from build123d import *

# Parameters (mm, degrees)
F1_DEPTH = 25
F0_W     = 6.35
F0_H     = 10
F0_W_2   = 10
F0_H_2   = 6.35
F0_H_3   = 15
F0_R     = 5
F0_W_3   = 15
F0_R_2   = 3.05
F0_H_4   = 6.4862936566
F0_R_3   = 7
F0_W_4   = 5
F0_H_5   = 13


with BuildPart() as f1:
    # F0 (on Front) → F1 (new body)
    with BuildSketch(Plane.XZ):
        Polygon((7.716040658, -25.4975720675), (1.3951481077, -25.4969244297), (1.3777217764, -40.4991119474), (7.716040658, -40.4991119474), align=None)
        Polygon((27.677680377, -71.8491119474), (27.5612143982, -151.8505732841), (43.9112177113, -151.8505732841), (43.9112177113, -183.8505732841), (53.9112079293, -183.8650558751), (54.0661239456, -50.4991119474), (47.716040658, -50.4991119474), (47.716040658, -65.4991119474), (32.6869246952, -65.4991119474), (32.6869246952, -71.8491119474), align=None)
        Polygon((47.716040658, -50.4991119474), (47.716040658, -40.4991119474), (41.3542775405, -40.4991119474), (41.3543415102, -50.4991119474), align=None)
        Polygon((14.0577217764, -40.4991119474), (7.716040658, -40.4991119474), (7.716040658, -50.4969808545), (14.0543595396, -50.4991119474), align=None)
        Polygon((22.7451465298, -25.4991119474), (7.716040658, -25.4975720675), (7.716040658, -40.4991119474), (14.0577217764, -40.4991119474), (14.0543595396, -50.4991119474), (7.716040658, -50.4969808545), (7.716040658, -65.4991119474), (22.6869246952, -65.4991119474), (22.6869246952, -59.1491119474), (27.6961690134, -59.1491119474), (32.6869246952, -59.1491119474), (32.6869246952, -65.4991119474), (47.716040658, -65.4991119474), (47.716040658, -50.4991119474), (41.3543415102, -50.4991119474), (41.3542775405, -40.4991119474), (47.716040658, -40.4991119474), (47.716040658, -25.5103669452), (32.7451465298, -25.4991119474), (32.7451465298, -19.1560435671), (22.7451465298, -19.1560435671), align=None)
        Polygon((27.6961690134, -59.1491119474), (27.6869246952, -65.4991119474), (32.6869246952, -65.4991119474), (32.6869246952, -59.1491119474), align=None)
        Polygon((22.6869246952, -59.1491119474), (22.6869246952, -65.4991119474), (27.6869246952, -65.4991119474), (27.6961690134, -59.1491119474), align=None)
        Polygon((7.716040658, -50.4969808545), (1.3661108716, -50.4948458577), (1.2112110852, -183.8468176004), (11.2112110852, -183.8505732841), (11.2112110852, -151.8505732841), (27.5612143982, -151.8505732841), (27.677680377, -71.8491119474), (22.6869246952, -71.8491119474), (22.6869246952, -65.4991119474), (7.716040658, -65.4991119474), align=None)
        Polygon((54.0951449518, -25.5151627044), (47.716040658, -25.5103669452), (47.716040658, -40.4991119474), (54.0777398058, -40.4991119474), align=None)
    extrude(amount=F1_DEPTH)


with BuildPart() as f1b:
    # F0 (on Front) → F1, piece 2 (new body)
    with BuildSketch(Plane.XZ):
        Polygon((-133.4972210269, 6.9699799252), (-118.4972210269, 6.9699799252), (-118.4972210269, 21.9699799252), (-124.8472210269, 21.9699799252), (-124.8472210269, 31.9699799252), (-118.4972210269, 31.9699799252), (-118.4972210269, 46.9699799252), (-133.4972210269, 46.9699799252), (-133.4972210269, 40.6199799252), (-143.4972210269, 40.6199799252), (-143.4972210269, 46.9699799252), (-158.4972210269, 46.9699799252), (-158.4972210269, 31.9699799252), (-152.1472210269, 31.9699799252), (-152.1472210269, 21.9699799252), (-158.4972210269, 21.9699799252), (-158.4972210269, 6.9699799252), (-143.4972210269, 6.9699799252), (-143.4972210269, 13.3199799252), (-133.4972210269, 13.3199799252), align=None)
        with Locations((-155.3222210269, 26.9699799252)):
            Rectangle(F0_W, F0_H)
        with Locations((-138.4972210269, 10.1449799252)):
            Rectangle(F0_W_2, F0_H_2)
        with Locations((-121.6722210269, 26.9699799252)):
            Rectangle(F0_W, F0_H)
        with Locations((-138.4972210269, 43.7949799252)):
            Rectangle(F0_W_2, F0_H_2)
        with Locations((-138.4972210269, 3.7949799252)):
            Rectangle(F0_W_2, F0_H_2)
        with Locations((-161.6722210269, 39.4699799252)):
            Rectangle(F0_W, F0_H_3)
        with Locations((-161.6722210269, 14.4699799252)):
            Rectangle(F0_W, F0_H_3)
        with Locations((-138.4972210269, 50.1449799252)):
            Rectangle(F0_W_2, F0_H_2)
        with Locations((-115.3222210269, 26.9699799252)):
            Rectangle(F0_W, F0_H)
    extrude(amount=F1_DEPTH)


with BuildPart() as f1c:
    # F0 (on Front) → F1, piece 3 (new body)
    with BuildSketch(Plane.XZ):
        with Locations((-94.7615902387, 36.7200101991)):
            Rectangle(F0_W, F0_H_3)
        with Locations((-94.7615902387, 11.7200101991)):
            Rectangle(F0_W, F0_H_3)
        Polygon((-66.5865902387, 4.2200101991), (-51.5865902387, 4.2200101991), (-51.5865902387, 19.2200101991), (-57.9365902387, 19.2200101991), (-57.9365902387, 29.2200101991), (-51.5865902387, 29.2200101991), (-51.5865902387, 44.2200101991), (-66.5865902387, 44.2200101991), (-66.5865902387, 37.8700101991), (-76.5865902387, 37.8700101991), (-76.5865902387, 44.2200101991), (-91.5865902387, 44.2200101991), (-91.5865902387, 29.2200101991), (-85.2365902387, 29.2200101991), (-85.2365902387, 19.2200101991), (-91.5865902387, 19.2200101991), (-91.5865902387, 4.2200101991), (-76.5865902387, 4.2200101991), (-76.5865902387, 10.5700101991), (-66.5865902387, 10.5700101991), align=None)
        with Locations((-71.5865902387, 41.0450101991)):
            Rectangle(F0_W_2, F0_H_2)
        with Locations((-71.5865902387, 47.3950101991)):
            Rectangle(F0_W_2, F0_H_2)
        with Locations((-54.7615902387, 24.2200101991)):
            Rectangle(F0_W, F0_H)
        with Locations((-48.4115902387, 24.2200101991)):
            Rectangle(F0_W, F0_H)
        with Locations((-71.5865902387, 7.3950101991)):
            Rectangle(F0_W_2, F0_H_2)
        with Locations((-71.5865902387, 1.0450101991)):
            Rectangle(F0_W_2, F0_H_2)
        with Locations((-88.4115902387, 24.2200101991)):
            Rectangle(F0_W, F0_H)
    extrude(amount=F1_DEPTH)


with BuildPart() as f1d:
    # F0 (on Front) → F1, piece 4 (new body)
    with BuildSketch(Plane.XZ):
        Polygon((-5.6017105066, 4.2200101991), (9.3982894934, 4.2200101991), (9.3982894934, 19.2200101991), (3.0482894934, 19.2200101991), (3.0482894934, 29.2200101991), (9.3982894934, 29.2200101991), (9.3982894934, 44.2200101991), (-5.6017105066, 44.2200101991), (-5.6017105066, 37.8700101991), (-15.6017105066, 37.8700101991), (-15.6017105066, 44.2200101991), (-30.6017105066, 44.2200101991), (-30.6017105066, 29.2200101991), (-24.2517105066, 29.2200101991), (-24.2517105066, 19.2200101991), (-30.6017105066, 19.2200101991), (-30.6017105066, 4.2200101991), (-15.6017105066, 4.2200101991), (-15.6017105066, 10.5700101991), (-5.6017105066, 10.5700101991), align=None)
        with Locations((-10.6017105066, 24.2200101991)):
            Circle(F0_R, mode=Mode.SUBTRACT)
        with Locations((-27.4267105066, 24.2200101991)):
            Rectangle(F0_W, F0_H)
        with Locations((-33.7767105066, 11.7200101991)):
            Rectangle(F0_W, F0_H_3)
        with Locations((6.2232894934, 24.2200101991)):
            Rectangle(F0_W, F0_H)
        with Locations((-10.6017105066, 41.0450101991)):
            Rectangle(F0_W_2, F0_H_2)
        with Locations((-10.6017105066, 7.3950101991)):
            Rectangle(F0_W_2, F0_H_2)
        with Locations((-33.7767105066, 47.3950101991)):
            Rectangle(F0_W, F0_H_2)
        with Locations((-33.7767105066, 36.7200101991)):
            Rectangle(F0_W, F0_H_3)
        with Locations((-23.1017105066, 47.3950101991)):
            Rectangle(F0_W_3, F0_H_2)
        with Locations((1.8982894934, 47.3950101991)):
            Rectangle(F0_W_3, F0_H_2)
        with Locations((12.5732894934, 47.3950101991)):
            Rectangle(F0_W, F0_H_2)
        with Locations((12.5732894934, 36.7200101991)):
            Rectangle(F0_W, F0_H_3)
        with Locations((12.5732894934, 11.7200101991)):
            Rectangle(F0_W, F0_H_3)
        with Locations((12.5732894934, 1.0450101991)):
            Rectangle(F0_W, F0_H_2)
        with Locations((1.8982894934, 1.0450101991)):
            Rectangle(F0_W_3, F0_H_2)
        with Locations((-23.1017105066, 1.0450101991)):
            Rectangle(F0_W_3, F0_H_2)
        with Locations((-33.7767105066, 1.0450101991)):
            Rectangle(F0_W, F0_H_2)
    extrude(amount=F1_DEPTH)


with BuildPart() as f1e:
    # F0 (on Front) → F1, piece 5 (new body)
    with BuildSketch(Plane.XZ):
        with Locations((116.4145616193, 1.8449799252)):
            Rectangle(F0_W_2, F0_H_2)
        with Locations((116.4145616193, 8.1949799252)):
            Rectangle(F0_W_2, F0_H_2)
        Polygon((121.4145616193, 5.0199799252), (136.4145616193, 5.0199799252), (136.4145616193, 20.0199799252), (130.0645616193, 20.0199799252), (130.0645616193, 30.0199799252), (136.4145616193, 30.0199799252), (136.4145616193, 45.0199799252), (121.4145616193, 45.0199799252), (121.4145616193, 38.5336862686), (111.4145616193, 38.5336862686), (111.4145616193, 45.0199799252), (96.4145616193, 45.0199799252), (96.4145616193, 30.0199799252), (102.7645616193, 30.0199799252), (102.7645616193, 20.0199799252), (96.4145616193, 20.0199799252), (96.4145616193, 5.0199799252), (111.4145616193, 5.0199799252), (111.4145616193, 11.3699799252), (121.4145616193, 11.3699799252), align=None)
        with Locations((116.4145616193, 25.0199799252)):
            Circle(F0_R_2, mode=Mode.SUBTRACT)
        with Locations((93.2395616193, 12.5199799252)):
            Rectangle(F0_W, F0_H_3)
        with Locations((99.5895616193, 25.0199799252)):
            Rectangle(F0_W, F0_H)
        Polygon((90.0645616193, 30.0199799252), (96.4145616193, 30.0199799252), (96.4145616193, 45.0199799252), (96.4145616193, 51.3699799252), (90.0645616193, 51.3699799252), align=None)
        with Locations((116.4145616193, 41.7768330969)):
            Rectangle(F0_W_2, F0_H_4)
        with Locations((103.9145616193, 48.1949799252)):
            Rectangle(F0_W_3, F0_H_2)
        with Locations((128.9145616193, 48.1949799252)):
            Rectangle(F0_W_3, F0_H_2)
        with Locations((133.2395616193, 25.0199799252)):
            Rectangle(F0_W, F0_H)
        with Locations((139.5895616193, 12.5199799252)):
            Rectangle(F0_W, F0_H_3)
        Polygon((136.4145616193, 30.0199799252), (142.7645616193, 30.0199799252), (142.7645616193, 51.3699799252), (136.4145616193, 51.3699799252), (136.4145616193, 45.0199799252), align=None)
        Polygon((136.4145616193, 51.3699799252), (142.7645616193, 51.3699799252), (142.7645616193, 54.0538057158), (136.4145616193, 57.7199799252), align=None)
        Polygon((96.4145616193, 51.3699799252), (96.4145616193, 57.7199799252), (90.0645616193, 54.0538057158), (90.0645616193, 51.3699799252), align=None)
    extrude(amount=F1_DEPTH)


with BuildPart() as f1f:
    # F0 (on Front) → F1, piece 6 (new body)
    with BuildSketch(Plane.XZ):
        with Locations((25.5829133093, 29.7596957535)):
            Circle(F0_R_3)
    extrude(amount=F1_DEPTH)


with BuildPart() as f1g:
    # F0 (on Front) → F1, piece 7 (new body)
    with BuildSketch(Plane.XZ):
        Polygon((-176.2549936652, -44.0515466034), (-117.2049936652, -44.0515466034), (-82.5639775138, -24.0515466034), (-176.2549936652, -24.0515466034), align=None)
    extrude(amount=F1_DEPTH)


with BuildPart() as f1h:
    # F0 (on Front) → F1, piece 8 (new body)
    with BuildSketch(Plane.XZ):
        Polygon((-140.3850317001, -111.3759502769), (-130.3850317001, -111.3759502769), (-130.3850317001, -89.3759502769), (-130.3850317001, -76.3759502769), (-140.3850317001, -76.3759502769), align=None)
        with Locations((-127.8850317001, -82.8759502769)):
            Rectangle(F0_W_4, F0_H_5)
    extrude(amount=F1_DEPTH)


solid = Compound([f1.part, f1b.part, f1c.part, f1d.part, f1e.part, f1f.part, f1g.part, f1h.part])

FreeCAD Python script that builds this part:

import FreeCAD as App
import Part
import Sketcher

V = App.Vector
Q = App.Units.Quantity

doc = App.newDocument("Part")
body = doc.addObject("PartDesign::Body", "Body")

sketch1 = body.newObject("Sketcher::SketchObject", "Sketch")
sketch1.AttachmentSupport = (doc.getObject("XZ_Plane"), [""])
sketch1.MapMode = "FlatFace"
sketch1.addGeometry([
    Part.LineSegment(V(7.716041, -25.497572, 0), V(1.395148, -25.496924, 0)),
    Part.LineSegment(V(1.395148, -25.496924, 0), V(1.377722, -40.499112, 0)),
    Part.LineSegment(V(1.377722, -40.499112, 0), V(7.716041, -40.499112, 0)),
    Part.LineSegment(V(7.716041, -40.499112, 0), V(7.716041, -50.496981, 0)),
    Part.LineSegment(V(7.716041, -50.496981, 0), V(1.366111, -50.494846, 0)),
    Part.LineSegment(V(1.366111, -50.494846, 0), V(1.211211, -183.846818, 0)),
    Part.LineSegment(V(1.211211, -183.846818, 0), V(11.211211, -183.850573, 0)),
    Part.LineSegment(V(11.211211, -183.850573, 0), V(11.211211, -151.850573, 0)),
    Part.LineSegment(V(11.211211, -151.850573, 0), V(43.911218, -151.850573, 0)),
    Part.LineSegment(V(43.911218, -151.850573, 0), V(43.911218, -183.850573, 0)),
    Part.LineSegment(V(43.911218, -183.850573, 0), V(53.911208, -183.865056, 0)),
    Part.LineSegment(V(53.911208, -183.865056, 0), V(54.066124, -50.499112, 0)),
    Part.LineSegment(V(54.066124, -50.499112, 0), V(47.716041, -50.499112, 0)),
    Part.LineSegment(V(47.716041, -50.499112, 0), V(47.716041, -40.499112, 0)),
    Part.LineSegment(V(47.716041, -40.499112, 0), V(54.07774, -40.499112, 0)),
    Part.LineSegment(V(54.07774, -40.499112, 0), V(54.095145, -25.515163, 0)),
    Part.LineSegment(V(54.095145, -25.515163, 0), V(47.716041, -25.510367, 0)),
    Part.LineSegment(V(47.716041, -25.510367, 0), V(32.745147, -25.499112, 0)),
    Part.LineSegment(V(32.745147, -25.499112, 0), V(32.745147, -19.156044, 0)),
    Part.LineSegment(V(32.745147, -19.156044, 0), V(22.745147, -19.156044, 0)),
    Part.LineSegment(V(22.745147, -19.156044, 0), V(22.745147, -25.499112, 0)),
    Part.LineSegment(V(22.745147, -25.499112, 0), V(7.716041, -25.497572, 0)),
    Part.LineSegment(V(22.686925, -65.499112, 0), V(32.686925, -65.499112, 0)),
    Part.LineSegment(V(32.686925, -65.499112, 0), V(32.686925, -71.849112, 0)),
    Part.LineSegment(V(32.686925, -71.849112, 0), V(22.686925, -71.849112, 0)),
    Part.LineSegment(V(22.686925, -71.849112, 0), V(22.686925, -65.499112, 0)),
], False)
sketch1.addConstraint([
    Sketcher.Constraint("Coincident", 0, 2, 1, 1),
    Sketcher.Constraint("Coincident", 1, 2, 2, 1),
    Sketcher.Constraint("Coincident", 2, 2, 3, 1),
    Sketcher.Constraint("Coincident", 3, 2, 4, 1),
    Sketcher.Constraint("Coincident", 4, 2, 5, 1),
    Sketcher.Constraint("Coincident", 5, 2, 6, 1),
    Sketcher.Constraint("Coincident", 6, 2, 7, 1),
    Sketcher.Constraint("Coincident", 7, 2, 8, 1),
    Sketcher.Constraint("Coincident", 8, 2, 9, 1),
    Sketcher.Constraint("Coincident", 9, 2, 10, 1),
    Sketcher.Constraint("Coincident", 10, 2, 11, 1),
    Sketcher.Constraint("Coincident", 11, 2, 12, 1),
    Sketcher.Constraint("Coincident", 12, 2, 13, 1),
    Sketcher.Constraint("Coincident", 13, 2, 14, 1),
    Sketcher.Constraint("Coincident", 14, 2, 15, 1),
    Sketcher.Constraint("Coincident", 15, 2, 16, 1),
    Sketcher.Constraint("Coincident", 16, 2, 17, 1),
    Sketcher.Constraint("Coincident", 17, 2, 18, 1),
    Sketcher.Constraint("Coincident", 18, 2, 19, 1),
    Sketcher.Constraint("Coincident", 19, 2, 20, 1),
    Sketcher.Constraint("Coincident", 20, 2, 21, 1),
    Sketcher.Constraint("Coincident", 21, 2, 0, 1),
    Sketcher.Constraint("Coincident", 22, 2, 23, 1),
    Sketcher.Constraint("Coincident", 23, 2, 24, 1),
    Sketcher.Constraint("Coincident", 24, 2, 25, 1),
    Sketcher.Constraint("Coincident", 25, 2, 22, 1),
    Sketcher.Constraint("Horizontal", 2),
    Sketcher.Constraint("Vertical", 3),
    Sketcher.Constraint("Vertical", 7),
    Sketcher.Constraint("Horizontal", 8),
    Sketcher.Constraint("Vertical", 9),
    Sketcher.Constraint("Horizontal", 12),
    Sketcher.Constraint("Vertical", 13),
    Sketcher.Constraint("Horizontal", 14),
    Sketcher.Constraint("Vertical", 18),
    Sketcher.Constraint("Horizontal", 19),
    Sketcher.Constraint("Vertical", 20),
    Sketcher.Constraint("Horizontal", 22),
    Sketcher.Constraint("Vertical", 23),
    Sketcher.Constraint("Horizontal", 24),
    Sketcher.Constraint("Vertical", 25),
    Sketcher.Constraint("DistanceX", 19, 2, 19, 1, Q("10 mm")),
    Sketcher.Constraint("DistanceX", 22, 1, 22, 2, Q("10 mm")),
    Sketcher.Constraint("DistanceY", 7, 1, 7, 2, Q("32 mm")),
    Sketcher.Constraint("DistanceY", 9, 2, 9, 1, Q("32 mm")),
    Sketcher.Constraint("DistanceY", 13, 1, 13, 2, Q("10 mm")),
    Sketcher.Constraint("Distance", 6, Q("10.000001 mm")),
    Sketcher.Constraint("Distance", 10, Q("10.000001 mm")),
    Sketcher.Constraint("DistanceY", 11, 2, 2, 2, Q("10 mm")),
    Sketcher.Constraint("DistanceX", 3, 2, 12, 2, Q("40 mm")),
    Sketcher.Constraint("DistanceY", 13, 2, 17, 2, Q("15 mm")),
    Sketcher.Constraint("DistanceY", 2, 2, 20, 2, Q("15 mm")),
    Sketcher.Constraint("DistanceY", 22, 2, 12, 2, Q("15 mm")),
    Sketcher.Constraint("DistanceY", 23, 2, 23, 1, Q("6.35 mm")),
    Sketcher.Constraint("DistanceX", 17, 2, 15, 2, Q("21.349998 mm")),
    Sketcher.Constraint("DistanceX", 0, 2, 19, 2, Q("21.349998 mm")),
    Sketcher.Constraint("DistanceX", 14, 1, 14, 2, Q("6.361699 mm")),
    Sketcher.Constraint("Distance", 17, Q("14.970898 mm")),
    Sketcher.Constraint("DistanceX", 2, 1, 2, 2, Q("6.338319 mm")),
    Sketcher.Constraint("DistanceY", 3, 2, 3, 1, Q("9.997869 mm")),
    Sketcher.Constraint("DistanceY", 18, 1, 18, 2, Q("6.343068 mm")),
    Sketcher.Constraint("DistanceX", 5, 2, 4, 2, Q("0.1549 mm")),
    Sketcher.Constraint("DistanceX", 16, 2, 14, 2, Q("6.361699 mm")),
    Sketcher.Constraint("DistanceX", 22, 2, 11, 2, Q("21.379199 mm")),
    Sketcher.Constraint("Distance", 4, Q("6.34993 mm")),
    Sketcher.Constraint("Distance", 5, Q("133.352062 mm")),
    Sketcher.Constraint("Distance", 15, Q("14.983959 mm")),
    Sketcher.Constraint("DistanceX", 8, 1, 8, 2, Q("32.700007 mm")),
    Sketcher.Constraint("DistanceX", 12, 2, 12, 1, Q("6.350083 mm")),
    Sketcher.Constraint("DistanceX", -1, 1, 0, 2, Q("1.395148 mm")),
    Sketcher.Constraint("DistanceY", 1, 2, -1, 1, Q("40.499112 mm")),
    Sketcher.Constraint("DistanceX", -1, 1, 21, 2, Q("7.716041 mm")),
    Sketcher.Constraint("DistanceY", 4, 2, 0, 2, Q("24.997921 mm")),
    Sketcher.Constraint("DistanceY", 6, 2, 2, 2, Q("143.351461 mm")),
    Sketcher.Constraint("DistanceY", 10, 2, 5, 2, Q("0.018238 mm")),
    Sketcher.Constraint("DistanceY", 0, 2, 19, 2, Q("6.340881 mm")),
    Sketcher.Constraint("DistanceY", 2, 2, 21, 2, Q("15.00154 mm")),
    Sketcher.Constraint("DistanceY", 16, 2, -1, 1, Q("25.510367 mm")),
])
pad1 = body.newObject("PartDesign::Pad", "Pad")
pad1.Profile = sketch1
pad1.Length = 25
body2 = doc.addObject("PartDesign::Body", "Body001")

sketch2 = body2.newObject("Sketcher::SketchObject", "Sketch001")
sketch2.AttachmentSupport = (doc.getObject("XZ_Plane001"), [""])
sketch2.MapMode = "FlatFace"
sketch2.addGeometry([
    Part.LineSegment(V(-118, 7, 0), V(-118, 22, 0)),
    Part.LineSegment(V(-118, 22, 0), V(-112, 22, 0)),
    Part.LineSegment(V(-112, 22, 0), V(-112, 32, 0)),
    Part.LineSegment(V(-112, 32, 0), V(-118, 32, 0)),
    Part.LineSegment(V(-118, 32, 0), V(-118, 47, 0)),
    Part.LineSegment(V(-118, 47, 0), V(-133, 47, 0)),
    Part.LineSegment(V(-133, 47, 0), V(-133, 53, 0)),
    Part.LineSegment(V(-133, 53, 0), V(-143, 53, 0)),
    Part.LineSegment(V(-143, 53, 0), V(-143, 47, 0)),
    Part.LineSegment(V(-143, 47, 0), V(-165, 47, 0)),
    Part.LineSegment(V(-165, 47, 0), V(-165, 32, 0)),
    Part.LineSegment(V(-165, 32, 0), V(-158, 32, 0)),
    Part.LineSegment(V(-158, 32, 0), V(-158, 22, 0)),
    Part.LineSegment(V(-158, 22, 0), V(-165, 22, 0)),
    Part.LineSegment(V(-165, 22, 0), V(-165, 7, 0)),
    Part.LineSegment(V(-165, 7, 0), V(-143, 7, 0)),
    Part.LineSegment(V(-143, 7, 0), V(-143, 1, 0)),
    Part.LineSegment(V(-143, 1, 0), V(-133, 1, 0)),
    Part.LineSegment(V(-133, 1, 0), V(-133, 7, 0)),
    Part.LineSegment(V(-133, 7, 0), V(-118, 7, 0)),
], False)
sketch2.addConstraint([
    Sketcher.Constraint("Coincident", 0, 2, 1, 1),
    Sketcher.Constraint("Coincident", 1, 2, 2, 1),
    Sketcher.Constraint("Coincident", 2, 2, 3, 1),
    Sketcher.Constraint("Coincident", 3, 2, 4, 1),
    Sketcher.Constraint("Coincident", 4, 2, 5, 1),
    Sketcher.Constraint("Coincident", 5, 2, 6, 1),
    Sketcher.Constraint("Coincident", 6, 2, 7, 1),
    Sketcher.Constraint("Coincident", 7, 2, 8, 1),
    Sketcher.Constraint("Coincident", 8, 2, 9, 1),
    Sketcher.Constraint("Coincident", 9, 2, 10, 1),
    Sketcher.Constraint("Coincident", 10, 2, 11, 1),
    Sketcher.Constraint("Coincident", 11, 2, 12, 1),
    Sketcher.Constraint("Coincident", 12, 2, 13, 1),
    Sketcher.Constraint("Coincident", 13, 2, 14, 1),
    Sketcher.Constraint("Coincident", 14, 2, 15, 1),
    Sketcher.Constraint("Coincident", 15, 2, 16, 1),
    Sketcher.Constraint("Coincident", 16, 2, 17, 1),
    Sketcher.Constraint("Coincident", 17, 2, 18, 1),
    Sketcher.Constraint("Coincident", 18, 2, 19, 1),
    Sketcher.Constraint("Coincident", 19, 2, 0, 1),
    Sketcher.Constraint("Vertical", 0),
    Sketcher.Constraint("Horizontal", 1),
    Sketcher.Constraint("Vertical", 2),
    Sketcher.Constraint("Horizontal", 3),
    Sketcher.Constraint("Vertical", 4),
    Sketcher.Constraint("Horizontal", 5),
    Sketcher.Constraint("Vertical", 6),
    Sketcher.Constraint("Horizontal", 7),
    Sketcher.Constraint("Vertical", 8),
    Sketcher.Constraint("Horizontal", 9),
    Sketcher.Constraint("Vertical", 10),
    Sketcher.Constraint("Horizontal", 11),
    Sketcher.Constraint("Vertical", 12),
    Sketcher.Constraint("Horizontal", 13),
    Sketcher.Constraint("Vertical", 14),
    Sketcher.Constraint("Horizontal", 15),
    Sketcher.Constraint("Vertical", 16),
    Sketcher.Constraint("Horizontal", 17),
    Sketcher.Constraint("Vertical", 18),
    Sketcher.Constraint("Horizontal", 19),
    Sketcher.Constraint("Horizontal", 5, 2, 8, 2),
    Sketcher.Constraint("Horizontal", 3, 2, 10, 2),
    Sketcher.Constraint("Horizontal", 1, 2, 12, 2),
    Sketcher.Constraint("Horizontal", 15, 2, 18, 2),
    Sketcher.Constraint("Vertical", 0, 2, 3, 2),
    Sketcher.Constraint("Vertical", 10, 2, 13, 2),
    Sketcher.Constraint("Vertical", 8, 2, 15, 2),
    Sketcher.Constraint("Vertical", 6, 2, 17, 2),
    Sketcher.Constraint("Equal", 3, 11),
    Sketcher.Constraint("Equal", 19, 0),
    Sketcher.Constraint("Equal", 17, 2),
    Sketcher.Constraint("Equal", 0, 4),
    Sketcher.Constraint("Equal", 13, 6),
    Sketcher.Constraint("Equal", 8, 16),
    Sketcher.Constraint("DistanceX", 5, 2, 5, 1, Q("15 mm")),
    Sketcher.Constraint("DistanceX", 7, 2, 7, 1, Q("10 mm")),
    Sketcher.Constraint("DistanceX", 11, 2, 8, 2, Q("15 mm")),
    Sketcher.Constraint("DistanceX", 1, 1, 1, 2, Q("6.35 mm")),
    Sketcher.Constraint("DistanceX", 0, 2, -1, 1, Q("118.497221 mm")),
    Sketcher.Constraint("DistanceY", -1, 1, 0, 2, Q("21.96998 mm")),
])
pad2 = body2.newObject("PartDesign::Pad", "Pad001")
pad2.Profile = sketch2
pad2.Length = 25
body3 = doc.addObject("PartDesign::Body", "Body002")

sketch3 = body3.newObject("Sketcher::SketchObject", "Sketch002")
sketch3.AttachmentSupport = (doc.getObject("XZ_Plane002"), [""])
sketch3.MapMode = "FlatFace"
sketch3.addGeometry([
    Part.LineSegment(V(-98, 44, 0), V(-98, 29, 0)),
    Part.LineSegment(V(-98, 29, 0), V(-92, 29, 0)),
    Part.LineSegment(V(-92, 29, 0), V(-92, 19, 0)),
    Part.LineSegment(V(-92, 19, 0), V(-98, 19, 0)),
    Part.LineSegment(V(-98, 19, 0), V(-98, 4, 0)),
    Part.LineSegment(V(-98, 4, 0), V(-77, 4, 0)),
    Part.LineSegment(V(-77, 4, 0), V(-77, -2, 0)),
    Part.LineSegment(V(-77, -2, 0), V(-67, -2, 0)),
    Part.LineSegment(V(-67, -2, 0), V(-67, 4, 0)),
    Part.LineSegment(V(-67, 4, 0), V(-52, 4, 0)),
    Part.LineSegment(V(-52, 4, 0), V(-52, 19, 0)),
    Part.LineSegment(V(-52, 19, 0), V(-45, 19, 0)),
    Part.LineSegment(V(-45, 19, 0), V(-45, 29, 0)),
    Part.LineSegment(V(-45, 29, 0), V(-52, 29, 0)),
    Part.LineSegment(V(-52, 29, 0), V(-52, 44, 0)),
    Part.LineSegment(V(-52, 44, 0), V(-67, 44, 0)),
    Part.LineSegment(V(-67, 44, 0), V(-67, 51, 0)),
    Part.LineSegment(V(-67, 51, 0), V(-77, 51, 0)),
    Part.LineSegment(V(-77, 51, 0), V(-77, 44, 0)),
    Part.LineSegment(V(-77, 44, 0), V(-98, 44, 0)),
], False)
sketch3.addConstraint([
    Sketcher.Constraint("Coincident", 0, 2, 1, 1),
    Sketcher.Constraint("Coincident", 1, 2, 2, 1),
    Sketcher.Constraint("Coincident", 2, 2, 3, 1),
    Sketcher.Constraint("Coincident", 3, 2, 4, 1),
    Sketcher.Constraint("Coincident", 4, 2, 5, 1),
    Sketcher.Constraint("Coincident", 5, 2, 6, 1),
    Sketcher.Constraint("Coincident", 6, 2, 7, 1),
    Sketcher.Constraint("Coincident", 7, 2, 8, 1),
    Sketcher.Constraint("Coincident", 8, 2, 9, 1),
    Sketcher.Constraint("Coincident", 9, 2, 10, 1),
    Sketcher.Constraint("Coincident", 10, 2, 11, 1),
    Sketcher.Constraint("Coincident", 11, 2, 12, 1),
    Sketcher.Constraint("Coincident", 12, 2, 13, 1),
    Sketcher.Constraint("Coincident", 13, 2, 14, 1),
    Sketcher.Constraint("Coincident", 14, 2, 15, 1),
    Sketcher.Constraint("Coincident", 15, 2, 16, 1),
    Sketcher.Constraint("Coincident", 16, 2, 17, 1),
    Sketcher.Constraint("Coincident", 17, 2, 18, 1),
    Sketcher.Constraint("Coincident", 18, 2, 19, 1),
    Sketcher.Constraint("Coincident", 19, 2, 0, 1),
    Sketcher.Constraint("Vertical", 0),
    Sketcher.Constraint("Horizontal", 1),
    Sketcher.Constraint("Vertical", 2),
    Sketcher.Constraint("Horizontal", 3),
    Sketcher.Constraint("Vertical", 4),
    Sketcher.Constraint("Horizontal", 5),
    Sketcher.Constraint("Vertical", 6),
    Sketcher.Constraint("Horizontal", 7),
    Sketcher.Constraint("Vertical", 8),
    Sketcher.Constraint("Horizontal", 9),
    Sketcher.Constraint("Vertical", 10),
    Sketcher.Constraint("Horizontal", 11),
    Sketcher.Constraint("Vertical", 12),
    Sketcher.Constraint("Horizontal", 13),
    Sketcher.Constraint("Vertical", 14),
    Sketcher.Constraint("Horizontal", 15),
    Sketcher.Constraint("Vertical", 16),
    Sketcher.Constraint("Horizontal", 17),
    Sketcher.Constraint("Vertical", 18),
    Sketcher.Constraint("Horizontal", 19),
    Sketcher.Constraint("Horizontal", 5, 2, 8, 2),
    Sketcher.Constraint("Horizontal", 3, 2, 10, 2),
    Sketcher.Constraint("Horizontal", 1, 2, 12, 2),
    Sketcher.Constraint("Horizontal", 15, 2, 18, 2),
    Sketcher.Constraint("Vertical", 0, 2, 3, 2),
    Sketcher.Constraint("Vertical", 10, 2, 13, 2),
    Sketcher.Constraint("Vertical", 8, 2, 15, 2),
    Sketcher.Constraint("Vertical", 6, 2, 17, 2),
    Sketcher.Constraint("Equal", 3, 11),
    Sketcher.Constraint("Equal", 15, 0),
    Sketcher.Constraint("Equal", 17, 2),
    Sketcher.Constraint("Equal", 0, 4),
    Sketcher.Constraint("Equal", 13, 6),
    Sketcher.Constraint("Equal", 8, 16),
    Sketcher.Constraint("DistanceX", 7, 1, 7, 2, Q("10 mm")),
    Sketcher.Constraint("DistanceX", 9, 1, 9, 2, Q("15 mm")),
    Sketcher.Constraint("DistanceX", 2, 2, 5, 2, Q("15 mm")),
    Sketcher.Constraint("DistanceX", 1, 1, 1, 2, Q("6.35 mm")),
    Sketcher.Constraint("DistanceX", 0, 2, -1, 1, Q("97.93659 mm")),
    Sketcher.Constraint("DistanceY", -1, 1, 0, 2, Q("29.22001 mm")),
])
pad3 = body3.newObject("PartDesign::Pad", "Pad002")
pad3.Profile = sketch3
pad3.Length = 25
body4 = doc.addObject("PartDesign::Body", "Body003")

sketch4 = body4.newObject("Sketcher::SketchObject", "Sketch003")
sketch4.AttachmentSupport = (doc.getObject("XZ_Plane003"), [""])
sketch4.MapMode = "FlatFace"
sketch4.addGeometry([
    Part.LineSegment(V(9, 19, 0), V(9, 29, 0)),
    Part.LineSegment(V(9, 29, 0), V(16, 29, 0)),
    Part.LineSegment(V(16, 29, 0), V(16, 51, 0)),
    Part.LineSegment(V(16, 51, 0), V(-6, 51, 0)),
    Part.LineSegment(V(-6, 51, 0), V(-6, 44, 0)),
    Part.LineSegment(V(-6, 44, 0), V(-16, 44, 0)),
    Part.LineSegment(V(-16, 44, 0), V(-16, 51, 0)),
    Part.LineSegment(V(-16, 51, 0), V(-37, 51, 0)),
    Part.LineSegment(V(-37, 51, 0), V(-37, 29, 0)),
    Part.LineSegment(V(-37, 29, 0), V(-31, 29, 0)),
    Part.LineSegment(V(-31, 29, 0), V(-31, 19, 0)),
    Part.LineSegment(V(-31, 19, 0), V(-37, 19, 0)),
    Part.LineSegment(V(-37, 19, 0), V(-37, -2, 0)),
    Part.LineSegment(V(-37, -2, 0), V(-16, -2, 0)),
    Part.LineSegment(V(-16, -2, 0), V(-16, 4, 0)),
    Part.LineSegment(V(-16, 4, 0), V(-6, 4, 0)),
    Part.LineSegment(V(-6, 4, 0), V(-6, -2, 0)),
    Part.LineSegment(V(-6, -2, 0), V(16, -2, 0)),
    Part.LineSegment(V(16, -2, 0), V(16, 19, 0)),
    Part.LineSegment(V(16, 19, 0), V(9, 19, 0)),
    Part.Circle(V(-11, 24, 0), V(0, 0, 1), 5),
], False)
sketch4.addConstraint([
    Sketcher.Constraint("Coincident", 0, 2, 1, 1),
    Sketcher.Constraint("Coincident", 1, 2, 2, 1),
    Sketcher.Constraint("Coincident", 2, 2, 3, 1),
    Sketcher.Constraint("Coincident", 3, 2, 4, 1),
    Sketcher.Constraint("Coincident", 4, 2, 5, 1),
    Sketcher.Constraint("Coincident", 5, 2, 6, 1),
    Sketcher.Constraint("Coincident", 6, 2, 7, 1),
    Sketcher.Constraint("Coincident", 7, 2, 8, 1),
    Sketcher.Constraint("Coincident", 8, 2, 9, 1),
    Sketcher.Constraint("Coincident", 9, 2, 10, 1),
    Sketcher.Constraint("Coincident", 10, 2, 11, 1),
    Sketcher.Constraint("Coincident", 11, 2, 12, 1),
    Sketcher.Constraint("Coincident", 12, 2, 13, 1),
    Sketcher.Constraint("Coincident", 13, 2, 14, 1),
    Sketcher.Constraint("Coincident", 14, 2, 15, 1),
    Sketcher.Constraint("Coincident", 15, 2, 16, 1),
    Sketcher.Constraint("Coincident", 16, 2, 17, 1),
    Sketcher.Constraint("Coincident", 17, 2, 18, 1),
    Sketcher.Constraint("Coincident", 18, 2, 19, 1),
    Sketcher.Constraint("Coincident", 19, 2, 0, 1),
    Sketcher.Constraint("Vertical", 0),
    Sketcher.Constraint("Horizontal", 1),
    Sketcher.Constraint("Vertical", 2),
    Sketcher.Constraint("Horizontal", 3),
    Sketcher.Constraint("Vertical", 4),
    Sketcher.Constraint("Horizontal", 5),
    Sketcher.Constraint("Vertical", 6),
    Sketcher.Constraint("Horizontal", 7),
    Sketcher.Constraint("Vertical", 8),
    Sketcher.Constraint("Horizontal", 9),
    Sketcher.Constraint("Vertical", 10),
    Sketcher.Constraint("Horizontal", 11),
    Sketcher.Constraint("Vertical", 12),
    Sketcher.Constraint("Horizontal", 13),
    Sketcher.Constraint("Vertical", 14),
    Sketcher.Constraint("Horizontal", 15),
    Sketcher.Constraint("Vertical", 16),
    Sketcher.Constraint("Horizontal", 17),
    Sketcher.Constraint("Vertical", 18),
    Sketcher.Constraint("Horizontal", 19),
    Sketcher.Constraint("Horizontal", 3, 2, 6, 2),
    Sketcher.Constraint("Horizontal", 1, 2, 8, 2),
    Sketcher.Constraint("Horizontal", 13, 2, 16, 2),
    Sketcher.Constraint("Horizontal", 11, 2, 18, 2),
    Sketcher.Constraint("Vertical", 8, 2, 11, 2),
    Sketcher.Constraint("Vertical", 6, 2, 13, 2),
    Sketcher.Constraint("Vertical", 4, 2, 15, 2),
    Sketcher.Constraint("Vertical", 2, 2, 17, 2),
    Sketcher.Constraint("Equal", 3, 7),
    Sketcher.Constraint("Equal", 1, 9),
    Sketcher.Constraint("Equal", 15, 0),
    Sketcher.Constraint("Equal", 17, 2),
    Sketcher.Constraint("Equal", 19, 4),
    Sketcher.Constraint("Equal", 8, 12),
    Sketcher.Constraint("Equal", 6, 14),
    Sketcher.Constraint("Diameter", 20, Q("10 mm")),
    Sketcher.Constraint("DistanceX", 5, 2, 5, 1, Q("10 mm")),
    Sketcher.Constraint("DistanceX", 20, 3, 0, 2, Q("20 mm")),
    Sketcher.Constraint("DistanceY", 20, 3, 0, 2, Q("5 mm")),
    Sketcher.Constraint("DistanceX", 3, 2, 0, 2, Q("15 mm")),
    Sketcher.Constraint("DistanceX", 1, 1, 1, 2, Q("6.35 mm")),
    Sketcher.Constraint("DistanceX", 20, 3, -1, 1, Q("10.601711 mm")),
    Sketcher.Constraint("DistanceY", -1, 1, 20, 3, Q("24.22001 mm")),
])
pad4 = body4.newObject("PartDesign::Pad", "Pad003")
pad4.Profile = sketch4
pad4.Length = 25
body5 = doc.addObject("PartDesign::Body", "Body004")

sketch5 = body5.newObject("Sketcher::SketchObject", "Sketch004")
sketch5.AttachmentSupport = (doc.getObject("XZ_Plane004"), [""])
sketch5.MapMode = "FlatFace"
sketch5.addGeometry([
    Part.LineSegment(V(111.4, -1.3, 0), V(121.4, -1.3, 0)),
    Part.LineSegment(V(121.4, -1.3, 0), V(121.4, 5, 0)),
    Part.LineSegment(V(121.4, 5, 0), V(142.8, 5, 0)),
    Part.LineSegment(V(142.8, 5, 0), V(142.8, 20, 0)),
    Part.LineSegment(V(142.8, 20, 0), V(136.4, 20, 0)),
    Part.LineSegment(V(136.4, 20, 0), V(136.4, 30, 0)),
    Part.LineSegment(V(136.4, 30, 0), V(142.8, 30, 0)),
    Part.LineSegment(V(142.8, 30, 0), V(142.8, 54.1, 0)),
    Part.LineSegment(V(142.8, 54.1, 0), V(136.4, 57.7, 0)),
    Part.LineSegment(V(136.4, 57.7, 0), V(136.4, 51.4, 0)),
    Part.LineSegment(V(136.4, 51.4, 0), V(121.4, 51.4, 0)),
    Part.LineSegment(V(121.4, 51.4, 0), V(121.4, 45, 0)),
    Part.LineSegment(V(121.4, 45, 0), V(111.4, 45, 0)),
    Part.LineSegment(V(111.4, 45, 0), V(111.4, 51.4, 0)),
    Part.LineSegment(V(111.4, 51.4, 0), V(96.4, 51.4, 0)),
    Part.LineSegment(V(96.4, 51.4, 0), V(96.4, 57.7, 0)),
    Part.LineSegment(V(96.4, 57.7, 0), V(90.1, 54.1, 0)),
    Part.LineSegment(V(90.1, 54.1, 0), V(90.1, 30, 0)),
    Part.LineSegment(V(90.1, 30, 0), V(96.4, 30, 0)),
    Part.LineSegment(V(96.4, 30, 0), V(96.4, 20, 0)),
    Part.LineSegment(V(96.4, 20, 0), V(90.1, 20, 0)),
    Part.LineSegment(V(90.1, 20, 0), V(90.1, 5, 0)),
    Part.LineSegment(V(90.1, 5, 0), V(111.4, 5, 0)),
    Part.LineSegment(V(111.4, 5, 0), V(111.4, -1.3, 0)),
    Part.Circle(V(116.4, 25, 0), V(0, 0, 1), 3),
], False)
sketch5.addConstraint([
    Sketcher.Constraint("Coincident", 0, 2, 1, 1),
    Sketcher.Constraint("Coincident", 1, 2, 2, 1),
    Sketcher.Constraint("Coincident", 2, 2, 3, 1),
    Sketcher.Constraint("Coincident", 3, 2, 4, 1),
    Sketcher.Constraint("Coincident", 4, 2, 5, 1),
    Sketcher.Constraint("Coincident", 5, 2, 6, 1),
    Sketcher.Constraint("Coincident", 6, 2, 7, 1),
    Sketcher.Constraint("Coincident", 7, 2, 8, 1),
    Sketcher.Constraint("Coincident", 8, 2, 9, 1),
    Sketcher.Constraint("Coincident", 9, 2, 10, 1),
    Sketcher.Constraint("Coincident", 10, 2, 11, 1),
    Sketcher.Constraint("Coincident", 11, 2, 12, 1),
    Sketcher.Constraint("Coincident", 12, 2, 13, 1),
    Sketcher.Constraint("Coincident", 13, 2, 14, 1),
    Sketcher.Constraint("Coincident", 14, 2, 15, 1),
    Sketcher.Constraint("Coincident", 15, 2, 16, 1),
    Sketcher.Constraint("Coincident", 16, 2, 17, 1),
    Sketcher.Constraint("Coincident", 17, 2, 18, 1),
    Sketcher.Constraint("Coincident", 18, 2, 19, 1),
    Sketcher.Constraint("Coincident", 19, 2, 20, 1),
    Sketcher.Constraint("Coincident", 20, 2, 21, 1),
    Sketcher.Constraint("Coincident", 21, 2, 22, 1),
    Sketcher.Constraint("Coincident", 22, 2, 23, 1),
    Sketcher.Constraint("Coincident", 23, 2, 0, 1),
    Sketcher.Constraint("Horizontal", 0),
    Sketcher.Constraint("Vertical", 1),
    Sketcher.Constraint("Horizontal", 2),
    Sketcher.Constraint("Vertical", 3),
    Sketcher.Constraint("Horizontal", 4),
    Sketcher.Constraint("Vertical", 5),
    Sketcher.Constraint("Horizontal", 6),
    Sketcher.Constraint("Vertical", 7),
    Sketcher.Constraint("Vertical", 9),
    Sketcher.Constraint("Horizontal", 10),
    Sketcher.Constraint("Vertical", 11),
    Sketcher.Constraint("Horizontal", 12),
    Sketcher.Constraint("Vertical", 13),
    Sketcher.Constraint("Horizontal", 14),
    Sketcher.Constraint("Vertical", 15),
    Sketcher.Constraint("Vertical", 17),
    Sketcher.Constraint("Horizontal", 18),
    Sketcher.Constraint("Vertical", 19),
    Sketcher.Constraint("Horizontal", 20),
    Sketcher.Constraint("Vertical", 21),
    Sketcher.Constraint("Horizontal", 22),
    Sketcher.Constraint("Vertical", 23),
    Sketcher.Constraint("Horizontal", 10, 2, 13, 2),
    Sketcher.Constraint("Horizontal", 8, 2, 15, 2),
    Sketcher.Constraint("Horizontal", 7, 2, 16, 2),
    Sketcher.Constraint("Horizontal", 6, 2, 17, 2),
    Sketcher.Constraint("Horizontal", 4, 2, 19, 2),
    Sketcher.Constraint("Horizontal", 2, 2, 21, 2),
    Sketcher.Constraint("Vertical", 3, 2, 6, 2),
    Sketcher.Constraint("Vertical", 5, 2, 8, 2),
    Sketcher.Constraint("Vertical", 1, 2, 10, 2),
    Sketcher.Constraint("Vertical", 15, 2, 18, 2),
    Sketcher.Constraint("Vertical", 17, 2, 20, 2),
    Sketcher.Constraint("Vertical", 13, 2, 22, 2),
    Sketcher.Constraint("Equal", 10, 14),
    Sketcher.Constraint("Equal", 6, 18),
    Sketcher.Constraint("Equal", 20, 1),
    Sketcher.Constraint("Equal", 14, 3),
    Sketcher.Constraint("Equal", 12, 5),
    Sketcher.Constraint("Equal", 1, 9),
    Sketcher.Constraint("Equal", 9, 11),
    Sketcher.Constraint("Diameter", 24, Q("6.1 mm")),
    Sketcher.Constraint("DistanceX", 0, 1, 0, 2, Q("10 mm")),
    Sketcher.Constraint("DistanceX", 10, 2, 10, 1, Q("15 mm")),
    Sketcher.Constraint("Angle", 8, Q("150 deg")),
    Sketcher.Constraint("DistanceX", 24, 3, 0, 2, Q("5 mm")),
    Sketcher.Constraint("DistanceY", 1, 2, 24, 3, Q("20 mm")),
    Sketcher.Constraint("DistanceY", 24, 3, 11, 2, Q("20 mm")),
    Sketcher.Constraint("DistanceX", 2, 1, 2, 2, Q("21.35 mm")),
    Sketcher.Constraint("DistanceX", -1, 1, 24, 3, Q("116.414562 mm")),
    Sketcher.Constraint("DistanceY", -1, 1, 24, 3, Q("25.01998 mm")),
])
pad5 = body5.newObject("PartDesign::Pad", "Pad004")
pad5.Profile = sketch5
pad5.Length = 25
body6 = doc.addObject("PartDesign::Body", "Body005")

sketch6 = body6.newObject("Sketcher::SketchObject", "Sketch005")
sketch6.AttachmentSupport = (doc.getObject("XZ_Plane005"), [""])
sketch6.MapMode = "FlatFace"
sketch6.addGeometry(Part.Circle(V(26, 30, 0), V(0, 0, 1), 7), False)
sketch6.addConstraint([
    Sketcher.Constraint("Diameter", 0, Q("14 mm")),
    Sketcher.Constraint("DistanceX", -1, 1, 0, 3, Q("25.582913 mm")),
    Sketcher.Constraint("DistanceY", -1, 1, 0, 3, Q("29.759696 mm")),
])
pad6 = body6.newObject("PartDesign::Pad", "Pad005")
pad6.Profile = sketch6
pad6.Length = 25
body7 = doc.addObject("PartDesign::Body", "Body006")

sketch7 = body7.newObject("Sketcher::SketchObject", "Sketch006")
sketch7.AttachmentSupport = (doc.getObject("XZ_Plane006"), [""])
sketch7.MapMode = "FlatFace"
sketch7.addGeometry([
    Part.LineSegment(V(-176, -44, 0), V(-117, -44, 0)),
    Part.LineSegment(V(-117, -44, 0), V(-83, -24, 0)),
    Part.LineSegment(V(-83, -24, 0), V(-176, -24, 0)),
    Part.LineSegment(V(-176, -24, 0), V(-176, -44, 0)),
], False)
sketch7.addConstraint([
    Sketcher.Constraint("Coincident", 0, 2, 1, 1),
    Sketcher.Constraint("Coincident", 1, 2, 2, 1),
    Sketcher.Constraint("Coincident", 2, 2, 3, 1),
    Sketcher.Constraint("Coincident", 3, 2, 0, 1),
    Sketcher.Constraint("Horizontal", 0),
    Sketcher.Constraint("Horizontal", 2),
    Sketcher.Constraint("Vertical", 3),
    Sketcher.Constraint("DistanceY", 3, 2, 3, 1, Q("20 mm")),
    Sketcher.Constraint("Angle", 1, Q("30 deg")),
    Sketcher.Constraint("DistanceX", 0, 1, 0, 2, Q("59.05 mm")),
    Sketcher.Constraint("DistanceX", 0, 2, -1, 1, Q("117.204994 mm")),
    Sketcher.Constraint("DistanceY", 0, 2, -1, 1, Q("44.051547 mm")),
])
pad7 = body7.newObject("PartDesign::Pad", "Pad006")
pad7.Profile = sketch7
pad7.Length = 25
body8 = doc.addObject("PartDesign::Body", "Body007")

sketch8 = body8.newObject("Sketcher::SketchObject", "Sketch007")
sketch8.AttachmentSupport = (doc.getObject("XZ_Plane007"), [""])
sketch8.MapMode = "FlatFace"
sketch8.addGeometry([
    Part.LineSegment(V(-140, -111, 0), V(-130, -111, 0)),
    Part.LineSegment(V(-130, -111, 0), V(-130, -89, 0)),
    Part.LineSegment(V(-130, -89, 0), V(-125, -89, 0)),
    Part.LineSegment(V(-125, -89, 0), V(-125, -76, 0)),
    Part.LineSegment(V(-125, -76, 0), V(-140, -76, 0)),
    Part.LineSegment(V(-140, -76, 0), V(-140, -111, 0)),
], False)
sketch8.addConstraint([
    Sketcher.Constraint("Coincident", 0, 2, 1, 1),
    Sketcher.Constraint("Coincident", 1, 2, 2, 1),
    Sketcher.Constraint("Coincident", 2, 2, 3, 1),
    Sketcher.Constraint("Coincident", 3, 2, 4, 1),
    Sketcher.Constraint("Coincident", 4, 2, 5, 1),
    Sketcher.Constraint("Coincident", 5, 2, 0, 1),
    Sketcher.Constraint("Horizontal", 0),
    Sketcher.Constraint("Vertical", 1),
    Sketcher.Constraint("Horizontal", 2),
    Sketcher.Constraint("Vertical", 3),
    Sketcher.Constraint("Horizontal", 4),
    Sketcher.Constraint("Vertical", 5),
    Sketcher.Constraint("DistanceX", 0, 1, 0, 2, Q("10 mm")),
    Sketcher.Constraint("DistanceX", 2, 1, 2, 2, Q("5 mm")),
    Sketcher.Constraint("DistanceY", 1, 1, 1, 2, Q("22 mm")),
    Sketcher.Constraint("DistanceY", 3, 1, 3, 2, Q("13 mm")),
    Sketcher.Constraint("DistanceX", 0, 2, -1, 1, Q("130.385032 mm")),
    Sketcher.Constraint("DistanceY", 0, 2, -1, 1, Q("111.37595 mm")),
])
pad8 = body8.newObject("PartDesign::Pad", "Pad007")
pad8.Profile = sketch8
pad8.Length = 25

doc.recompute()
